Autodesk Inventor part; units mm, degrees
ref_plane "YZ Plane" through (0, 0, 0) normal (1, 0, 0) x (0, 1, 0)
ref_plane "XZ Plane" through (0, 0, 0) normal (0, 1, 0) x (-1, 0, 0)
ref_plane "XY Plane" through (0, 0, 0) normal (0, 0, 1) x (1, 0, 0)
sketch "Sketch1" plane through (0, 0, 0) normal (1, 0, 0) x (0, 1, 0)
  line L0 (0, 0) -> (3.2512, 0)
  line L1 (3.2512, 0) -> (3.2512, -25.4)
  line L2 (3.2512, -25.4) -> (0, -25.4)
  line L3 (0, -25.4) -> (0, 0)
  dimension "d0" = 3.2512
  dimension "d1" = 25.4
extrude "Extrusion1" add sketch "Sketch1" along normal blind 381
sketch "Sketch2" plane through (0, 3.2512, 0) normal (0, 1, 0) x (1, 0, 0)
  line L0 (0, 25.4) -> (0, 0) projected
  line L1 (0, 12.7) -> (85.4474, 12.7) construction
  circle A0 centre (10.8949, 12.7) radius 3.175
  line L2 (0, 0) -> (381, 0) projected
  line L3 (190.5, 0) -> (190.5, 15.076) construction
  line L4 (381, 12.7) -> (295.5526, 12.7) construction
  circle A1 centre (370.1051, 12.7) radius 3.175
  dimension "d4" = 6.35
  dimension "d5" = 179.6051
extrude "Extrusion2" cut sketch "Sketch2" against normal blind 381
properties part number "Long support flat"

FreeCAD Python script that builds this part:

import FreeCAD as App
import Part
import Sketcher
from FreeCAD import Vector
Q = App.Units.Quantity


def add_polygon(sketch, points):
    """Adds a closed chain of lines whose ends are joined by coincident constraints."""
    first, n = sketch.GeometryCount, len(points)
    for a, b in zip(points, points[1:] + points[:1]):
        sketch.addGeometry(Part.LineSegment(App.Vector(*a, 0), App.Vector(*b, 0)), False)
    for i in range(n):
        sketch.addConstraint(Sketcher.Constraint("Coincident", first + i, 2, first + (i + 1) % n, 1))

doc = App.newDocument("Part")
body = doc.addObject("PartDesign::Body", "Body")

# Sketch on YZ plane
sketch1 = doc.addObject("Sketcher::SketchObject", "Sketch")
body.addObject(sketch1)
sketch1.AttachmentSupport = (doc.YZ_Plane, [""])
sketch1.MapMode = "FlatFace"
add_polygon(sketch1, [(3.3, 0), (0, 0), (0, -25.4), (3.3, -25.4)])  # lines 0-3
sketch1.addConstraint(Sketcher.Constraint("Horizontal", 0))
sketch1.addConstraint(Sketcher.Constraint("Vertical", 1))
sketch1.addConstraint(Sketcher.Constraint("Horizontal", 2))
sketch1.addConstraint(Sketcher.Constraint("Vertical", 3))
sketch1.addConstraint(Sketcher.Constraint("Coincident", 0, 2, -1, 1))
sketch1.addConstraint(Sketcher.Constraint("DistanceY", 1, 2, 1, 1, Q("1 in")))
sketch1.addConstraint(Sketcher.Constraint("DistanceX", 0, 2, 0, 1, Q("0.128 in")))
pad1 = doc.addObject("PartDesign::Pad", "Pad")
body.addObject(pad1)
pad1.Profile = sketch1
pad1.Length = Q("15 in")

# Sketch on XZ plane
sketch2 = doc.addObject("Sketcher::SketchObject", "Sketch001")
body.addObject(sketch2)
sketch2.AttachmentSupport = (doc.XZ_Plane, [""])
sketch2.MapMode = "FlatFace"
sketch2.AttachmentOffset = App.Placement(Vector(0, 0, -0.128 * 25.4), App.Rotation())
sketch2.addGeometry(Part.Circle(Vector(10.9, -12.7, 0), Vector(0, 0, 1), 3.2), False)
sketch2.addGeometry(Part.Circle(Vector(370.1, -12.7, 0), Vector(0, 0, 1), 3.2), False)
sketch2.addConstraint(Sketcher.Constraint("Equal", 0, 1))
sketch2.addConstraint(Sketcher.Constraint("Horizontal", 0, 3, 1, 3))
sketch2.addConstraint(Sketcher.Constraint("Diameter", 0, Q("0.25 in")))
sketch2.addConstraint(Sketcher.Constraint("DistanceY", 0, 3, -1, 1, Q("0.5 in")))
sketch2.addConstraint(Sketcher.Constraint("DistanceX", -1, 1, 0, 3, 10.895))
sketch2.addConstraint(Sketcher.Constraint("DistanceX", -1, 1, 1, 3, 370.105))
pocket1 = doc.addObject("PartDesign::Pocket", "Pocket")
body.addObject(pocket1)
pocket1.Profile = sketch2
pocket1.Length = Q("15 in")
pocket1.Reversed = True

doc.recompute()
